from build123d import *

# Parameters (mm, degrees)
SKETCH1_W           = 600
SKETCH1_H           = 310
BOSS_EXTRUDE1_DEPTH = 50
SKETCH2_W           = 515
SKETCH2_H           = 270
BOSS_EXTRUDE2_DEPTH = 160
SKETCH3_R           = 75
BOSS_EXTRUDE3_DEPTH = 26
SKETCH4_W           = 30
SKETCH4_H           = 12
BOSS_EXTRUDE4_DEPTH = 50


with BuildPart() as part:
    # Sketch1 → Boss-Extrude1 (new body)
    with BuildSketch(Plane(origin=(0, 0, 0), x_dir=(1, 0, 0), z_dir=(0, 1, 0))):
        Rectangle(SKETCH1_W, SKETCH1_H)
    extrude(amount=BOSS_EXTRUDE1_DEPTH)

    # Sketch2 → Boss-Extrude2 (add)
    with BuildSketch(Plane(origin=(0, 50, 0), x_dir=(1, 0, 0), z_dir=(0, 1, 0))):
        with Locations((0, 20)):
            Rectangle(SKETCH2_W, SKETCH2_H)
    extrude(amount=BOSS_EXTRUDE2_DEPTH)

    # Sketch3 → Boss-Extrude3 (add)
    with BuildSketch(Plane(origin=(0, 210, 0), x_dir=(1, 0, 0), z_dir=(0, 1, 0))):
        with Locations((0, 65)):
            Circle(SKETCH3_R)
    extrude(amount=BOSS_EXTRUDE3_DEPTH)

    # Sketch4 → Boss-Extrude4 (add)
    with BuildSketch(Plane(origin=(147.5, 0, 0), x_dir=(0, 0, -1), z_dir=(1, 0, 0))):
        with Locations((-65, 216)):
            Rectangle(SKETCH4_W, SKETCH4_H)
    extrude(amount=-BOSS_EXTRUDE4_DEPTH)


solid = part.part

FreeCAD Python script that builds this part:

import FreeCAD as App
import Part
import Sketcher
Q = App.Units.Quantity

doc = App.newDocument("Part")
body = doc.addObject("PartDesign::Body", "Body")

sketch1 = doc.addObject("Sketcher::SketchObject", "Sketch")
body.addObject(sketch1)
sketch1.AttachmentSupport = (doc.XZ_Plane, [""])
sketch1.MapMode = "FlatFace"
sketch1.addGeometry(Part.LineSegment(App.Vector(-300, -155, 0), App.Vector(-300, 155, 0)), False)
sketch1.addGeometry(Part.LineSegment(App.Vector(-300, 155, 0), App.Vector(300, 155, 0)), False)
sketch1.addGeometry(Part.LineSegment(App.Vector(300, 155, 0), App.Vector(300, -155, 0)), False)
sketch1.addGeometry(Part.LineSegment(App.Vector(300, -155, 0), App.Vector(-300, -155, 0)), False)
sketch1.addConstraint(Sketcher.Constraint("Coincident", 0, 2, 1, 1))
sketch1.addConstraint(Sketcher.Constraint("Coincident", 1, 2, 2, 1))
sketch1.addConstraint(Sketcher.Constraint("Coincident", 2, 2, 3, 1))
sketch1.addConstraint(Sketcher.Constraint("Coincident", 3, 2, 0, 1))
sketch1.addConstraint(Sketcher.Constraint("Vertical", 0))
sketch1.addConstraint(Sketcher.Constraint("Horizontal", 1))
sketch1.addConstraint(Sketcher.Constraint("Vertical", 2))
sketch1.addConstraint(Sketcher.Constraint("Horizontal", 3))
sketch1.addConstraint(Sketcher.Constraint("Symmetric", 0, 2, 2, 2, -1, 1))
sketch1.addConstraint(Sketcher.Constraint("DistanceX", 1, 1, 1, 2, Q("600 mm")))
sketch1.addConstraint(Sketcher.Constraint("DistanceY", 0, 1, 0, 2, Q("310 mm")))
pad1 = doc.addObject("PartDesign::Pad", "Pad")
body.addObject(pad1)
pad1.Profile = sketch1
pad1.Length = 50
pad1.Reversed = True

sketch2 = doc.addObject("Sketcher::SketchObject", "Sketch001")
body.addObject(sketch2)
sketch2.AttachmentSupport = (doc.XZ_Plane, [""])
sketch2.MapMode = "FlatFace"
sketch2.AttachmentOffset = App.Placement(App.Vector(0, 0, -50), App.Rotation())
sketch2.addGeometry(Part.LineSegment(App.Vector(-258, -155, 0), App.Vector(-258, 115, 0)), False)
sketch2.addGeometry(Part.LineSegment(App.Vector(-258, 115, 0), App.Vector(258, 115, 0)), False)
sketch2.addGeometry(Part.LineSegment(App.Vector(258, 115, 0), App.Vector(258, -155, 0)), False)
sketch2.addGeometry(Part.LineSegment(App.Vector(258, -155, 0), App.Vector(-258, -155, 0)), False)
sketch2.addConstraint(Sketcher.Constraint("Coincident", 0, 2, 1, 1))
sketch2.addConstraint(Sketcher.Constraint("Coincident", 1, 2, 2, 1))
sketch2.addConstraint(Sketcher.Constraint("Coincident", 2, 2, 3, 1))
sketch2.addConstraint(Sketcher.Constraint("Coincident", 3, 2, 0, 1))
sketch2.addConstraint(Sketcher.Constraint("Vertical", 0))
sketch2.addConstraint(Sketcher.Constraint("Horizontal", 1))
sketch2.addConstraint(Sketcher.Constraint("Vertical", 2))
sketch2.addConstraint(Sketcher.Constraint("Horizontal", 3))
sketch2.addConstraint(Sketcher.Constraint("DistanceX", 1, 1, 1, 2, Q("515 mm")))
sketch2.addConstraint(Sketcher.Constraint("DistanceY", 0, 1, 0, 2, Q("270 mm")))
sketch2.addConstraint(Sketcher.Constraint("DistanceY", -1, 1, 0, 2, Q("115 mm")))
sketch2.addConstraint(Sketcher.Constraint("DistanceX", 0, 2, -1, 1, Q("257.5 mm")))
pad2 = doc.addObject("PartDesign::Pad", "Pad001")
body.addObject(pad2)
pad2.Profile = sketch2
pad2.Length = 160
pad2.Reversed = True

sketch3 = doc.addObject("Sketcher::SketchObject", "Sketch002")
body.addObject(sketch3)
sketch3.AttachmentSupport = (doc.XZ_Plane, [""])
sketch3.MapMode = "FlatFace"
sketch3.AttachmentOffset = App.Placement(App.Vector(0, 0, -210), App.Rotation())
sketch3.addGeometry(Part.Circle(App.Vector(0, -65, 0), App.Vector(0, 0, 1), 75), False)
sketch3.addConstraint(Sketcher.Constraint("PointOnObject", 0, 3, -2))
sketch3.addConstraint(Sketcher.Constraint("Diameter", 0, Q("150 mm")))
sketch3.addConstraint(Sketcher.Constraint("DistanceY", 0, 3, -1, 1, Q("65 mm")))
pad3 = doc.addObject("PartDesign::Pad", "Pad002")
body.addObject(pad3)
pad3.Profile = sketch3
pad3.Length = 26
pad3.Reversed = True

sketch4 = doc.addObject("Sketcher::SketchObject", "Sketch003")
body.addObject(sketch4)
sketch4.AttachmentSupport = (doc.YZ_Plane, [""])
sketch4.MapMode = "FlatFace"
sketch4.AttachmentOffset = App.Placement(App.Vector(0, 0, 147.5), App.Rotation())
sketch4.addGeometry(Part.LineSegment(App.Vector(222, 80, 0), App.Vector(210, 80, 0)), False)
sketch4.addGeometry(Part.LineSegment(App.Vector(210, 80, 0), App.Vector(210, 50, 0)), False)
sketch4.addGeometry(Part.LineSegment(App.Vector(210, 50, 0), App.Vector(222, 50, 0)), False)
sketch4.addGeometry(Part.LineSegment(App.Vector(222, 50, 0), App.Vector(222, 80, 0)), False)
sketch4.addConstraint(Sketcher.Constraint("Coincident", 0, 2, 1, 1))
sketch4.addConstraint(Sketcher.Constraint("Coincident", 1, 2, 2, 1))
sketch4.addConstraint(Sketcher.Constraint("Coincident", 2, 2, 3, 1))
sketch4.addConstraint(Sketcher.Constraint("Coincident", 3, 2, 0, 1))
sketch4.addConstraint(Sketcher.Constraint("Horizontal", 0))
sketch4.addConstraint(Sketcher.Constraint("Vertical", 1))
sketch4.addConstraint(Sketcher.Constraint("Horizontal", 2))
sketch4.addConstraint(Sketcher.Constraint("Vertical", 3))
sketch4.addConstraint(Sketcher.Constraint("DistanceX", 0, 2, 0, 1, Q("12 mm")))
sketch4.addConstraint(Sketcher.Constraint("DistanceY", 1, 2, 1, 1, Q("30 mm")))
sketch4.addConstraint(Sketcher.Constraint("DistanceX", -1, 1, 0, 2, Q("210 mm")))
sketch4.addConstraint(Sketcher.Constraint("DistanceY", -1, 1, 0, 2, Q("80 mm")))
pad4 = doc.addObject("PartDesign::Pad", "Pad003")
body.addObject(pad4)
pad4.Profile = sketch4
pad4.Length = 50
pad4.Reversed = True

doc.recompute()
